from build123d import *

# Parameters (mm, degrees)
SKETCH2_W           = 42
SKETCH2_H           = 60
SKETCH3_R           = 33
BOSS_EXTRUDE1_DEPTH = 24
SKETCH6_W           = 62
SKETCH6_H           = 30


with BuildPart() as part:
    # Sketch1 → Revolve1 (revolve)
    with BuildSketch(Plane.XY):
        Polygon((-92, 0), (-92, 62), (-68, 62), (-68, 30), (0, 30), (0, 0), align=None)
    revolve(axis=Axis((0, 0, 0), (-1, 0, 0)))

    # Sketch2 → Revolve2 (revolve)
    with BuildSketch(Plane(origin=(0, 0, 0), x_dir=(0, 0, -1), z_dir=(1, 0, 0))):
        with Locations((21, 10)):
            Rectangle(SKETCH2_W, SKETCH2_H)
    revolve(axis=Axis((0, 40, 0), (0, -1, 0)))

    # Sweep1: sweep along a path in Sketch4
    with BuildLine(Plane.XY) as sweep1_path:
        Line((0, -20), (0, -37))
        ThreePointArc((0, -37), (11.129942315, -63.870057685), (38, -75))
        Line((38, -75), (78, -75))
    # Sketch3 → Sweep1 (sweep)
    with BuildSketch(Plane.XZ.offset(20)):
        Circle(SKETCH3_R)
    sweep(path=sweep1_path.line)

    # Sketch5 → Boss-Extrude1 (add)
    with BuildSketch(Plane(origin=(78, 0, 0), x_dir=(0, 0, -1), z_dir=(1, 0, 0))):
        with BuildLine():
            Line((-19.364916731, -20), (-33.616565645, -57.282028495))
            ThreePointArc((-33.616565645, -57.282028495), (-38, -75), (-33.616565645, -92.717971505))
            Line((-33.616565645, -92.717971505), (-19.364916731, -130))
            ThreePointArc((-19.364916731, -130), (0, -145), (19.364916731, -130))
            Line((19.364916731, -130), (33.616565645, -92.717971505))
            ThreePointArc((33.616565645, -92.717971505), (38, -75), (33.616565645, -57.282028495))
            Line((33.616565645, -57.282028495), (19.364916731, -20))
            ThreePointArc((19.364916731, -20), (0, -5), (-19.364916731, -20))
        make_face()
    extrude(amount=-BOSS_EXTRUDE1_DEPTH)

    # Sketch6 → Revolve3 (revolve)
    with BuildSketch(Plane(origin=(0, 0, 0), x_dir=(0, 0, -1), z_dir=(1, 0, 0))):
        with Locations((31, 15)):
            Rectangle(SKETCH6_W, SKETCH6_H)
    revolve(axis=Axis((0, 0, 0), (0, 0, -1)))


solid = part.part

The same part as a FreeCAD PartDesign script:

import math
import FreeCAD as App
import Part
import Sketcher

V = App.Vector


def add_polygon(sketch, points):
    """Adds a closed chain of lines whose ends are joined by coincident constraints."""
    first, n = sketch.GeometryCount, len(points)
    for a, b in zip(points, points[1:] + points[:1]):
        sketch.addGeometry(Part.LineSegment(App.Vector(*a, 0), App.Vector(*b, 0)), False)
    for i in range(n):
        sketch.addConstraint(Sketcher.Constraint("Coincident", first + i, 2, first + (i + 1) % n, 1))

doc = App.newDocument("Part")
body = doc.addObject("PartDesign::Body", "Body")

# Sketch on XY plane
sketch1 = body.newObject("Sketcher::SketchObject", "Sketch")
sketch1.AttachmentSupport = (doc.getObject("XY_Plane"), [""])
sketch1.MapMode = "FlatFace"
add_polygon(sketch1, [(-92, 62), (-92, 0), (0, 0), (0, 30), (-68, 30), (-68, 62)])  # lines 0-5
sketch1.addConstraint(Sketcher.Constraint("Vertical", 0))
sketch1.addConstraint(Sketcher.Constraint("Horizontal", 1))
sketch1.addConstraint(Sketcher.Constraint("Vertical", 2))
sketch1.addConstraint(Sketcher.Constraint("Horizontal", 3))
sketch1.addConstraint(Sketcher.Constraint("Vertical", 4))
sketch1.addConstraint(Sketcher.Constraint("Horizontal", 5))
sketch1.addConstraint(Sketcher.Constraint("Coincident", 1, 2, -1, 1))
sketch1.addConstraint(Sketcher.Constraint("DistanceX", 1, 1, 1, 2, 92.0))
sketch1.addConstraint(Sketcher.Constraint("DistanceX", 3, 2, 3, 1, 68.0))
sketch1.addConstraint(Sketcher.Constraint("DistanceY", 0, 2, 0, 1, 62.0))
sketch1.addConstraint(Sketcher.Constraint("DistanceY", 2, 1, 2, 2, 30.0))
revolution = body.newObject("PartDesign::Revolution", "Revolution")
revolution.Profile = sketch1
revolution.ReferenceAxis = (sketch1, ["H_Axis"])
revolution.Angle = 360

# Sketch on YZ plane
sketch2 = body.newObject("Sketcher::SketchObject", "Sketch001")
sketch2.AttachmentSupport = (doc.getObject("YZ_Plane"), [""])
sketch2.MapMode = "FlatFace"
add_polygon(sketch2, [(40, 0), (-20, 0), (-20, -42), (40, -42)])  # lines 0-3
sketch2.addConstraint(Sketcher.Constraint("Horizontal", 0))
sketch2.addConstraint(Sketcher.Constraint("Vertical", 1))
sketch2.addConstraint(Sketcher.Constraint("Horizontal", 2))
sketch2.addConstraint(Sketcher.Constraint("Vertical", 3))
sketch2.addConstraint(Sketcher.Constraint("PointOnObject", 0, 2, -1))
sketch2.addConstraint(Sketcher.Constraint("DistanceX", 0, 2, 0, 1, 60.0))
sketch2.addConstraint(Sketcher.Constraint("DistanceY", 1, 2, 1, 1, 42.0))
sketch2.addConstraint(Sketcher.Constraint("DistanceX", 0, 2, -1, 1, 20.0))
revolution2 = body.newObject("PartDesign::Revolution", "Revolution001")
revolution2.Profile = sketch2
revolution2.ReferenceAxis = (sketch2, ["H_Axis"])
revolution2.Angle = 360

# Sketch on XZ plane
sketch3 = body.newObject("Sketcher::SketchObject", "Sketch002")
sketch3.AttachmentSupport = (doc.getObject("XZ_Plane"), [""])
sketch3.MapMode = "FlatFace"
sketch3.AttachmentOffset = App.Placement(V(0, 0, 20), App.Rotation())
sketch3.addGeometry(Part.Circle(V(0, 0, 0), V(0, 0, 1), 33), False)
sketch3.addConstraint(Sketcher.Constraint("Coincident", 0, 3, -1, 1))
sketch3.addConstraint(Sketcher.Constraint("Diameter", 0, 66.0))

# Sketch on XY plane
sketch4 = body.newObject("Sketcher::SketchObject", "Sketch003")
sketch4.AttachmentSupport = (doc.getObject("XY_Plane"), [""])
sketch4.MapMode = "FlatFace"
sketch4.addGeometry(Part.LineSegment(V(0, -20, 0), V(0, -37, 0)), False)
sketch4.addGeometry(Part.ArcOfCircle(Part.Circle(V(38, -37, 0), V(0, 0, 1), 38), math.radians(180), math.radians(270)), False)
sketch4.addGeometry(Part.LineSegment(V(38, -75, 0), V(78, -75, 0)), False)
sketch4.addConstraint(Sketcher.Constraint("Tangent", 0, 2, 1, 1))
sketch4.addConstraint(Sketcher.Constraint("Tangent", 1, 2, 2, 1))
sketch4.addConstraint(Sketcher.Constraint("Vertical", 0))
sketch4.addConstraint(Sketcher.Constraint("Horizontal", 2))
sketch4.addConstraint(Sketcher.Constraint("PointOnObject", 0, 1, -2))
sketch4.addConstraint(Sketcher.Constraint("Radius", 1, 38.0))
sketch4.addConstraint(Sketcher.Constraint("DistanceX", 2, 1, 2, 2, 40.0))
sketch4.addConstraint(Sketcher.Constraint("DistanceY", 0, 2, 0, 1, 17.0))
sketch4.addConstraint(Sketcher.Constraint("DistanceY", 1, 3, -1, 1, 37.0))
doc.recompute()

additivepipe = body.newObject("PartDesign::AdditivePipe", "AdditivePipe")
additivepipe.Profile = sketch3
additivepipe.Spine = (sketch4, ["Edge1", "Edge2", "Edge3"])

# Sketch on YZ plane
sketch5 = body.newObject("Sketcher::SketchObject", "Sketch004")
sketch5.AttachmentSupport = (doc.getObject("YZ_Plane"), [""])
sketch5.MapMode = "FlatFace"
sketch5.AttachmentOffset = App.Placement(V(0, 0, 78), App.Rotation())
sketch5.addGeometry(Part.LineSegment(V(-20, 19, 0), V(-57, 34, 0)), False)
sketch5.addGeometry(Part.ArcOfCircle(Part.Circle(V(-75, 0, 0), V(0, 0, 1), 38), math.radians(62), math.radians(118)), False)
sketch5.addGeometry(Part.LineSegment(V(-93, 34, 0), V(-130, 19, 0)), False)
sketch5.addGeometry(Part.ArcOfCircle(Part.Circle(V(-125, 0, 0), V(0, 0, 1), 20), math.radians(104), math.radians(256)), False)
sketch5.addGeometry(Part.LineSegment(V(-130, -19, 0), V(-93, -34, 0)), False)
sketch5.addGeometry(Part.ArcOfCircle(Part.Circle(V(-75, 0, 0), V(0, 0, 1), 38), math.radians(-118), math.radians(-62)), False)
sketch5.addGeometry(Part.LineSegment(V(-57, -34, 0), V(-20, -19, 0)), False)
sketch5.addGeometry(Part.ArcOfCircle(Part.Circle(V(-25, 0, 0), V(0, 0, 1), 20), math.radians(-76), math.radians(76)), False)
sketch5.addConstraint(Sketcher.Constraint("Coincident", 0, 2, 1, 1))
sketch5.addConstraint(Sketcher.Constraint("Coincident", 1, 2, 2, 1))
sketch5.addConstraint(Sketcher.Constraint("Coincident", 2, 2, 3, 1))
sketch5.addConstraint(Sketcher.Constraint("Coincident", 3, 2, 4, 1))
sketch5.addConstraint(Sketcher.Constraint("Coincident", 4, 2, 5, 1))
sketch5.addConstraint(Sketcher.Constraint("Coincident", 5, 2, 6, 1))
sketch5.addConstraint(Sketcher.Constraint("Coincident", 6, 2, 7, 1))
sketch5.addConstraint(Sketcher.Constraint("Coincident", 7, 2, 0, 1))
sketch5.addConstraint(Sketcher.Constraint("Coincident", 5, 3, 1, 3))
sketch5.addConstraint(Sketcher.Constraint("Equal", 1, 5))
sketch5.addConstraint(Sketcher.Constraint("Equal", 3, 7))
sketch5.addConstraint(Sketcher.Constraint("Symmetric", 2, 2, 3, 2, -1))
sketch5.addConstraint(Sketcher.Constraint("Symmetric", 1, 2, 4, 2, -1))
sketch5.addConstraint(Sketcher.Constraint("Symmetric", 6, 2, 7, 2, -1))
sketch5.addConstraint(Sketcher.Constraint("Parallel", 0, 4))
sketch5.addConstraint(Sketcher.Constraint("Parallel", 2, 6))
sketch5.addConstraint(Sketcher.Constraint("Horizontal", 0, 2, 1, 2))
sketch5.addConstraint(Sketcher.Constraint("Horizontal", 3, 2, 6, 2))
sketch5.addConstraint(Sketcher.Constraint("Radius", 1, 38.0))
sketch5.addConstraint(Sketcher.Constraint("Radius", 3, 20.0))
sketch5.addConstraint(Sketcher.Constraint("DistanceX", 1, 3, -1, 1, 75.0))
sketch5.addConstraint(Sketcher.Constraint("DistanceX", 3, 3, -1, 1, 125.0))
sketch5.addConstraint(Sketcher.Constraint("DistanceX", 2, 2, -1, 1, 130.0))
sketch5.addConstraint(Sketcher.Constraint("DistanceX", 0, 2, -1, 1, 57.282028))
pad1 = body.newObject("PartDesign::Pad", "Pad")
pad1.Profile = sketch5
pad1.Length = 24
pad1.Reversed = True

# Sketch on YZ plane
sketch6 = body.newObject("Sketcher::SketchObject", "Sketch005")
sketch6.AttachmentSupport = (doc.getObject("YZ_Plane"), [""])
sketch6.MapMode = "FlatFace"
add_polygon(sketch6, [(30, 0), (0, 0), (0, -62), (30, -62)])  # lines 0-3
sketch6.addConstraint(Sketcher.Constraint("Horizontal", 0))
sketch6.addConstraint(Sketcher.Constraint("Vertical", 1))
sketch6.addConstraint(Sketcher.Constraint("Horizontal", 2))
sketch6.addConstraint(Sketcher.Constraint("Vertical", 3))
sketch6.addConstraint(Sketcher.Constraint("Coincident", 0, 2, -1, 1))
sketch6.addConstraint(Sketcher.Constraint("DistanceX", 0, 2, 0, 1, 30.0))
sketch6.addConstraint(Sketcher.Constraint("DistanceY", 1, 2, 1, 1, 62.0))
revolution3 = body.newObject("PartDesign::Revolution", "Revolution002")
revolution3.Profile = sketch6
revolution3.ReferenceAxis = (sketch6, ["V_Axis"])
revolution3.Angle = 360

doc.recompute()
